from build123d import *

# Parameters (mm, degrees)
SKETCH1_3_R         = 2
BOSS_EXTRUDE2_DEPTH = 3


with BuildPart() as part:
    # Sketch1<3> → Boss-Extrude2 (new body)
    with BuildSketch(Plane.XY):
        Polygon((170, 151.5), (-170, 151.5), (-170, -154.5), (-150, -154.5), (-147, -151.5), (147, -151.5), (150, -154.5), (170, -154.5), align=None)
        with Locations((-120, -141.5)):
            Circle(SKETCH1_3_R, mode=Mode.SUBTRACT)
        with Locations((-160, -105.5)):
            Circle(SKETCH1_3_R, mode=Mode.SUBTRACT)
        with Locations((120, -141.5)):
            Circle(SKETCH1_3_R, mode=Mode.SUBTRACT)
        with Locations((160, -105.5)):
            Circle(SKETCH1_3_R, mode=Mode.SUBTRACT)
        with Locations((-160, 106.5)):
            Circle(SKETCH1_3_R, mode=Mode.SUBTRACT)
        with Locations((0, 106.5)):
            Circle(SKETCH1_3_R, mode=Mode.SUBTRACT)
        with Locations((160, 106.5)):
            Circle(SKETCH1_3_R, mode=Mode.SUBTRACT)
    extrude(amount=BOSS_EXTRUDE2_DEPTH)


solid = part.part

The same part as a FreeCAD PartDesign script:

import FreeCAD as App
import Part
import Sketcher

V = App.Vector
Q = App.Units.Quantity


def add_polygon(sketch, points):
    """Adds a closed chain of lines whose ends are joined by coincident constraints."""
    first, n = sketch.GeometryCount, len(points)
    for a, b in zip(points, points[1:] + points[:1]):
        sketch.addGeometry(Part.LineSegment(App.Vector(*a, 0), App.Vector(*b, 0)), False)
    for i in range(n):
        sketch.addConstraint(Sketcher.Constraint("Coincident", first + i, 2, first + (i + 1) % n, 1))

doc = App.newDocument("Part")
body = doc.addObject("PartDesign::Body", "Body")

sketch1 = body.newObject("Sketcher::SketchObject", "Sketch")
sketch1.AttachmentSupport = (doc.getObject("XY_Plane"), [""])
sketch1.MapMode = "FlatFace"
add_polygon(sketch1, [(170, 151.5), (-170, 151.5), (-170, -154.5), (-150, -154.5), (-147, -151.5), (147, -151.5), (150, -154.5), (170, -154.5)])
sketch1.addGeometry(Part.Circle(V(-120, -141.5, 0), V(0, 0, 1), 2), False)
sketch1.addGeometry(Part.Circle(V(-160, -105.5, 0), V(0, 0, 1), 2), False)
sketch1.addGeometry(Part.Circle(V(120, -141.5, 0), V(0, 0, 1), 2), False)
sketch1.addGeometry(Part.Circle(V(160, -105.5, 0), V(0, 0, 1), 2), False)
sketch1.addGeometry(Part.Circle(V(-160, 106.5, 0), V(0, 0, 1), 2), False)
sketch1.addGeometry(Part.Circle(V(0, 106.5, 0), V(0, 0, 1), 2), False)
sketch1.addGeometry(Part.Circle(V(160, 106.5, 0), V(0, 0, 1), 2), False)
sketch1.addConstraint([
    Sketcher.Constraint("Horizontal", 0),
    Sketcher.Constraint("Vertical", 1),
    Sketcher.Constraint("Horizontal", 2),
    Sketcher.Constraint("Horizontal", 4),
    Sketcher.Constraint("Horizontal", 6),
    Sketcher.Constraint("Vertical", 7),
    Sketcher.Constraint("Equal", 8, 9),
    Sketcher.Constraint("Equal", 9, 10),
    Sketcher.Constraint("Equal", 10, 11),
    Sketcher.Constraint("Equal", 11, 12),
    Sketcher.Constraint("Equal", 12, 13),
    Sketcher.Constraint("Equal", 13, 14),
    Sketcher.Constraint("Symmetric", 8, 3, 10, 3, -2),
    Sketcher.Constraint("Symmetric", 9, 3, 11, 3, -2),
    Sketcher.Constraint("Symmetric", 12, 3, 14, 3, -2),
    Sketcher.Constraint("Symmetric", 2, 2, 5, 2, -2),
    Sketcher.Constraint("PointOnObject", 13, 3, -2),
    Sketcher.Constraint("Perpendicular", 3, 5),
    Sketcher.Constraint("Horizontal", 12, 3, 13, 3),
    Sketcher.Constraint("Vertical", 9, 3, 12, 3),
    Sketcher.Constraint("Equal", 2, 6),
    Sketcher.Constraint("Equal", 3, 5),
    Sketcher.Constraint("Diameter", 8, Q("4 mm")),
    Sketcher.Constraint("DistanceX", 0, 2, 0, 1, Q("340 mm")),
    Sketcher.Constraint("DistanceX", 2, 1, 2, 2, Q("20 mm")),
    Sketcher.Constraint("DistanceX", 4, 1, 4, 2, Q("294 mm")),
    Sketcher.Constraint("DistanceY", 1, 2, 1, 1, Q("306 mm")),
    Sketcher.Constraint("DistanceX", 8, 3, -1, 1, Q("120 mm")),
    Sketcher.Constraint("DistanceX", 9, 3, -1, 1, Q("160 mm")),
    Sketcher.Constraint("DistanceY", 8, 3, 9, 3, Q("36 mm")),
    Sketcher.Constraint("DistanceY", 9, 3, 12, 3, Q("212 mm")),
    Sketcher.Constraint("DistanceY", 12, 3, 0, 2, Q("45 mm")),
    Sketcher.Constraint("DistanceY", 8, 3, -1, 1, Q("141.5 mm")),
])
pad1 = body.newObject("PartDesign::Pad", "Pad")
pad1.Profile = sketch1
pad1.Length = 3

doc.recompute()
